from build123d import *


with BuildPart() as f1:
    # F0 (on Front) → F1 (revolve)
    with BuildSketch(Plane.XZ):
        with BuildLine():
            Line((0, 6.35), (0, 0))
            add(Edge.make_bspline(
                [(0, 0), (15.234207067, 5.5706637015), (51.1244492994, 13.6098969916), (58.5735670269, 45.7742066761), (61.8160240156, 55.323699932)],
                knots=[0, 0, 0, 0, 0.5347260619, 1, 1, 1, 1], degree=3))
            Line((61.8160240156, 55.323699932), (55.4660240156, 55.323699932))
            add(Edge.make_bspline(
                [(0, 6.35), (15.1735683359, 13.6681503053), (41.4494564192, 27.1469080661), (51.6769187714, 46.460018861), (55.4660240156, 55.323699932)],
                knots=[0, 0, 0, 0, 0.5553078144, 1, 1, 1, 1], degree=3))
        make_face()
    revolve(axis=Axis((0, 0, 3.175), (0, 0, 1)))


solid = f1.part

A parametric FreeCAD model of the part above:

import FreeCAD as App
import Part
import Sketcher

doc = App.newDocument("Part")
body = doc.addObject("PartDesign::Body", "Body")

sketch1 = body.newObject("Sketcher::SketchObject", "Sketch")
sketch1.AttachmentSupport = (doc.getObject("XZ_Plane"), [""])
sketch1.MapMode = "FlatFace"
sketch1.addGeometry([
    Part.LineSegment(App.Vector(0, 6.35, 0), App.Vector(0, 0, 0)),
    Part.BSplineCurve([App.Vector(0, 0, 0), App.Vector(15.234207, 5.570664, 0), App.Vector(51.124449, 13.609897, 0), App.Vector(58.573567, 45.774207, 0), App.Vector(61.816024, 55.3237, 0)], [4, 1, 4], [0, 0.534726062, 1], False, 3, [1, 1, 1, 1, 1], False),
    Part.LineSegment(App.Vector(61.816024, 55.3237, 0), App.Vector(55.466024, 55.3237, 0)),
    Part.BSplineCurve([App.Vector(0, 6.35, 0), App.Vector(15.173568, 13.66815, 0), App.Vector(41.449456, 27.146908, 0), App.Vector(51.676919, 46.460019, 0), App.Vector(55.466024, 55.3237, 0)], [4, 1, 4], [0, 0.555307814, 1], False, 3, [1, 1, 1, 1, 1], False),
], False)
sketch1.addConstraint([
    Sketcher.Constraint("Block", 1),
    Sketcher.Constraint("Block", 3),
    Sketcher.Constraint("Coincident", 0, 2, 1, 1),
    Sketcher.Constraint("Coincident", 1, 2, 2, 1),
    Sketcher.Constraint("Coincident", 2, 2, 3, 2),
    Sketcher.Constraint("Coincident", 3, 1, 0, 1),
])
revolution = body.newObject("PartDesign::Revolution", "Revolution")
revolution.Profile = sketch1
revolution.ReferenceAxis = (sketch1, ["V_Axis"])
revolution.Angle = 360

doc.recompute()
